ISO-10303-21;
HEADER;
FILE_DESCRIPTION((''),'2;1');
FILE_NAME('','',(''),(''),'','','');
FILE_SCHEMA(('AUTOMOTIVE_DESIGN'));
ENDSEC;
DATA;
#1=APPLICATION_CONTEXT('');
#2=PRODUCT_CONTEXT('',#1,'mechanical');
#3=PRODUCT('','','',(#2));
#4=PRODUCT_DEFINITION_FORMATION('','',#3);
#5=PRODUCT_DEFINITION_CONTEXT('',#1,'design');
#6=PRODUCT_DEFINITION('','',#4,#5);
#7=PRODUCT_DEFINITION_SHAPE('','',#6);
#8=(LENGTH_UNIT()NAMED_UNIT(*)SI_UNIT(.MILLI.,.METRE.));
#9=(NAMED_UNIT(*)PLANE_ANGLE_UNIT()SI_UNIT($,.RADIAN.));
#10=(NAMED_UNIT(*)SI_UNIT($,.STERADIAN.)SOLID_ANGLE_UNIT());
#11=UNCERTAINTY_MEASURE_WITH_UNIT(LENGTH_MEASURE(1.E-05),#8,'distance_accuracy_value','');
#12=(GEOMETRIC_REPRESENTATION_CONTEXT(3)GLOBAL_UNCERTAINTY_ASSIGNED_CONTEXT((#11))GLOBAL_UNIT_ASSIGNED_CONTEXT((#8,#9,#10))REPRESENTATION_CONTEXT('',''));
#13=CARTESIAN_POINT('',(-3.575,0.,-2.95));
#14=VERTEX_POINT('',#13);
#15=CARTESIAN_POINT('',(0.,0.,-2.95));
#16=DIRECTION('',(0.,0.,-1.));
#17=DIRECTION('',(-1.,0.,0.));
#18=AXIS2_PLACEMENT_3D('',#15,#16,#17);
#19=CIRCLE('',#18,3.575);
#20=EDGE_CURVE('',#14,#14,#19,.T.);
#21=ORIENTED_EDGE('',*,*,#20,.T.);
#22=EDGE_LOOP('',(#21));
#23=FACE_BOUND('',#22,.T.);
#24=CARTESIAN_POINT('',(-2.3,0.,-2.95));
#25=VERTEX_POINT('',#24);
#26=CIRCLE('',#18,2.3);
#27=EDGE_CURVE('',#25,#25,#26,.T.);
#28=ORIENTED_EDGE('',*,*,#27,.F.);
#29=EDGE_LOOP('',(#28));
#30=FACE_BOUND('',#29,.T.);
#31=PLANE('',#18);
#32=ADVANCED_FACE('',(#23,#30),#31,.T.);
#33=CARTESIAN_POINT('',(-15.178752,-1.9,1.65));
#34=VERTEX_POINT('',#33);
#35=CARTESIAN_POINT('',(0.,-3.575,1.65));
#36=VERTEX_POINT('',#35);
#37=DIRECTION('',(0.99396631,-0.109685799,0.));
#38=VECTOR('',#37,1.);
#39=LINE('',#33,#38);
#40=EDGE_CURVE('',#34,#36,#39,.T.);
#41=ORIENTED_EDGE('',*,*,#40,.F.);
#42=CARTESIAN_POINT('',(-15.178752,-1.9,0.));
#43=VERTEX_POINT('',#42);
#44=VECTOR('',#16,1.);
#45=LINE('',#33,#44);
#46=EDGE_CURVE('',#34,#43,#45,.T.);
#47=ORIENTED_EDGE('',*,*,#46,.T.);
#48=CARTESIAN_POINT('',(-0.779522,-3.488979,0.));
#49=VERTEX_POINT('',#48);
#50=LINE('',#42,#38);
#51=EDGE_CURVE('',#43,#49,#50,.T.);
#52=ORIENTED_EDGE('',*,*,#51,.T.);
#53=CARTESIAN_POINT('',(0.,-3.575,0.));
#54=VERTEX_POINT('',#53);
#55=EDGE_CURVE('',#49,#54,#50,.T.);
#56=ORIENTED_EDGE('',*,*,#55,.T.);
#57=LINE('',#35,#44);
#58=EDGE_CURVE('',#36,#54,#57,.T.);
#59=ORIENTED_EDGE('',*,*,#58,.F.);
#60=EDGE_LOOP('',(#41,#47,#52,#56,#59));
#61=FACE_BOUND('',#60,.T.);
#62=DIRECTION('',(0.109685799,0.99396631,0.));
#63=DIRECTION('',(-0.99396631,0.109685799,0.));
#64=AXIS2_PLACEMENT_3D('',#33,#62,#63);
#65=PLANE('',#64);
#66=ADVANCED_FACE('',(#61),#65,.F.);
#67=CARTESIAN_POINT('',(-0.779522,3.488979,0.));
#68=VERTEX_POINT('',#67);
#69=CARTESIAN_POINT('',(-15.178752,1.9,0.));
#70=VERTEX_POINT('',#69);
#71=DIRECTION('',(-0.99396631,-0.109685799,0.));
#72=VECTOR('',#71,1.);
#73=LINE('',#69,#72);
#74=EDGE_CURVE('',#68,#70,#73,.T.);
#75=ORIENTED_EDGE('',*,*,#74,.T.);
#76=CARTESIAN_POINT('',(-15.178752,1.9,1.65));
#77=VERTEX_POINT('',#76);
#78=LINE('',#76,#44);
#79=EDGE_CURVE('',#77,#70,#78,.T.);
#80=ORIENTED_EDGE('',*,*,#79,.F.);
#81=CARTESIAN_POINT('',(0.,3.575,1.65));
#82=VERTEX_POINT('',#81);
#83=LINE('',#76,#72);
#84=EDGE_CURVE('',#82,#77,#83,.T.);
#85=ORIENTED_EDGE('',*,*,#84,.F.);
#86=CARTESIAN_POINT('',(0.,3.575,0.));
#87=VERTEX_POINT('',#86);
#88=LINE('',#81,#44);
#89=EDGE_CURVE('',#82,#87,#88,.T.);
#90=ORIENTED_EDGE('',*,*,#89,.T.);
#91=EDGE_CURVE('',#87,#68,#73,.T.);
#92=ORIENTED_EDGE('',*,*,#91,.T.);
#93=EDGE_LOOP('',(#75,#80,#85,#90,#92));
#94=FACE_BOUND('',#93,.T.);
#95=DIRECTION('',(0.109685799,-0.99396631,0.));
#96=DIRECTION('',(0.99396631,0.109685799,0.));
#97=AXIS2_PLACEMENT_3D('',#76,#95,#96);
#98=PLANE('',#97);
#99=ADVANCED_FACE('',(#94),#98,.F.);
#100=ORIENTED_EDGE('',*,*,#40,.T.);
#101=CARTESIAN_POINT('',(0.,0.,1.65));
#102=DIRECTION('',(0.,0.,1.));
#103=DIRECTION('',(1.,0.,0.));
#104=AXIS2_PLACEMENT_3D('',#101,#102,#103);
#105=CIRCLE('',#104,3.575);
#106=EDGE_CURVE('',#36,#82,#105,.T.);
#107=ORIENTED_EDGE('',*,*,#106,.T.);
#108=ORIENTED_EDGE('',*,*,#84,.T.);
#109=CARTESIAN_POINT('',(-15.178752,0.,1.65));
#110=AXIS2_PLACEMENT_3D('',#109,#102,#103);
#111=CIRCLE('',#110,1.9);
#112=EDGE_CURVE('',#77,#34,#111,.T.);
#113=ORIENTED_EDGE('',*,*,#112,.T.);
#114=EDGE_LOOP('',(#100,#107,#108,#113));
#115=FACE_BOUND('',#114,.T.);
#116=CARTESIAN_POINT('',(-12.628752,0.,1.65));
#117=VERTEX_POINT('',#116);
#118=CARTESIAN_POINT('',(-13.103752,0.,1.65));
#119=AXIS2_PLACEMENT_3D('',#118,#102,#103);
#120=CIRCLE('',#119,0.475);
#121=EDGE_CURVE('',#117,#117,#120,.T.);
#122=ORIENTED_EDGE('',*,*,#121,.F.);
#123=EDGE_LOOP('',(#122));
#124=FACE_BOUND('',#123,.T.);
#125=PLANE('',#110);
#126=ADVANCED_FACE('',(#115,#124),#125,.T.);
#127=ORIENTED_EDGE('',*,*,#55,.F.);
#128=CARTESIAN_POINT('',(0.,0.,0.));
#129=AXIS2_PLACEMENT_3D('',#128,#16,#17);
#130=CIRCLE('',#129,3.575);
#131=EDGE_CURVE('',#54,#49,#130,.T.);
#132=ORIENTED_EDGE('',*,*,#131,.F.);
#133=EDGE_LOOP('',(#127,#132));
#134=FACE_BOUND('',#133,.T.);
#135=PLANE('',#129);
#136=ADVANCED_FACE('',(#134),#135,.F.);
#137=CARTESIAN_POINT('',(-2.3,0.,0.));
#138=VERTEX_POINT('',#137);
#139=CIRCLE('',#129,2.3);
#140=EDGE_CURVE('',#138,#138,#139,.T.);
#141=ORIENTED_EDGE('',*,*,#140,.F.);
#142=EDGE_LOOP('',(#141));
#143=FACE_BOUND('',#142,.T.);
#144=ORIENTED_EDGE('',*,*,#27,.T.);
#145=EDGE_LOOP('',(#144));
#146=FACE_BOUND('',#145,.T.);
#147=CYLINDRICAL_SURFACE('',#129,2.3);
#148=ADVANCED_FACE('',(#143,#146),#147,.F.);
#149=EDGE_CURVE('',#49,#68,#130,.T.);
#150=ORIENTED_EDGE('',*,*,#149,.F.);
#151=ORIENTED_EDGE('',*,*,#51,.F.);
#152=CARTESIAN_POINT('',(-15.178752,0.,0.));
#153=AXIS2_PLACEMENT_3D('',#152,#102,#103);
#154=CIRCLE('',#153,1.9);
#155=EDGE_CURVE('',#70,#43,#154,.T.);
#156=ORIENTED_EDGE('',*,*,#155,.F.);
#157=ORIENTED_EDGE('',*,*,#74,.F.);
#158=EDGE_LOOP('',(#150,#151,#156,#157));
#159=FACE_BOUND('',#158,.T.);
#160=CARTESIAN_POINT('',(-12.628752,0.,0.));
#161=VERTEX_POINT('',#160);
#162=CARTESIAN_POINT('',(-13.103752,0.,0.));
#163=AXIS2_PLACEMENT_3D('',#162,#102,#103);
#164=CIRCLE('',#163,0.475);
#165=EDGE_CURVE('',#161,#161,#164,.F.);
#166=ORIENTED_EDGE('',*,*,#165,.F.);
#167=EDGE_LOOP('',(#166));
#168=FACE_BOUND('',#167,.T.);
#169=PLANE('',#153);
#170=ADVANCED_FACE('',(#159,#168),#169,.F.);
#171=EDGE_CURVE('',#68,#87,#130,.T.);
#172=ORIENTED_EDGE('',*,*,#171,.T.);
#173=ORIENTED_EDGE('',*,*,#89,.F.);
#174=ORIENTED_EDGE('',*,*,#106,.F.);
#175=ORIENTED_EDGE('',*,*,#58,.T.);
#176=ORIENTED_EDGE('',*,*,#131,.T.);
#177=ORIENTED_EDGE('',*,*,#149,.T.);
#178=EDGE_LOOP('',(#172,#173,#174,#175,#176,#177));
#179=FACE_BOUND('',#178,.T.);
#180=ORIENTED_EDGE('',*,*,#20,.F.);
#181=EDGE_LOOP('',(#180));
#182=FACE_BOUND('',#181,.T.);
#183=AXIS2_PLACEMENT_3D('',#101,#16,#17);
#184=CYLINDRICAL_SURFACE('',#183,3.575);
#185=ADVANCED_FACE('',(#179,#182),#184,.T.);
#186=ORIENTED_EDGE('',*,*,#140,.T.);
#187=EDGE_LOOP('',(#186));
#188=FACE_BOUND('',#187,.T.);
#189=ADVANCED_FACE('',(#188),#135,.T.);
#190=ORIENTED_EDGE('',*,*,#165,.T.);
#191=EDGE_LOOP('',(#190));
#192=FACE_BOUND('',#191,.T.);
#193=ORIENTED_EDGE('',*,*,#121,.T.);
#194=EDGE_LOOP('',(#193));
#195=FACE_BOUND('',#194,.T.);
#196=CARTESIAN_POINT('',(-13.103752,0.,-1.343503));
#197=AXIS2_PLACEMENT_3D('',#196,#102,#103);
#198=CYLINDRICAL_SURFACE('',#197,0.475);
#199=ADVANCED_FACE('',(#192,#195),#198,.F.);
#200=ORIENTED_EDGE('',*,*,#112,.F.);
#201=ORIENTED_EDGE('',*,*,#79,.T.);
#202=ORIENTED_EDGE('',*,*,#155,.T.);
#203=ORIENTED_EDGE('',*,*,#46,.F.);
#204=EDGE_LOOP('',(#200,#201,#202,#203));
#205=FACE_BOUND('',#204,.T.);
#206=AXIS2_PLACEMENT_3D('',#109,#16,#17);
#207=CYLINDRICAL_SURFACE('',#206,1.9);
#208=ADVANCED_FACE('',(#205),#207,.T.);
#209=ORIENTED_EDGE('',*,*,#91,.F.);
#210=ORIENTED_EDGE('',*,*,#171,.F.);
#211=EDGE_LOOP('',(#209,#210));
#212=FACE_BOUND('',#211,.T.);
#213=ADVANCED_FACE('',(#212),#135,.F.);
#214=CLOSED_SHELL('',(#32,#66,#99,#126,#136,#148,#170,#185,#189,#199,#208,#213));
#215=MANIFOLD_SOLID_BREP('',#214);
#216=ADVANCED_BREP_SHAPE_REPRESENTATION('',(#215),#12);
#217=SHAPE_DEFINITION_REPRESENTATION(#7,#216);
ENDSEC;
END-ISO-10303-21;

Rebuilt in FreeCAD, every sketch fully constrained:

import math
import FreeCAD as App
import Part
import Sketcher
Q = App.Units.Quantity

doc = App.newDocument("Part")
body = doc.addObject("PartDesign::Body", "Body")

sketch1 = doc.addObject("Sketcher::SketchObject", "Sketch")
body.addObject(sketch1)
sketch1.AttachmentSupport = (doc.XY_Plane, [""])
sketch1.MapMode = "FlatFace"
sketch1.addGeometry([
    Part.LineSegment(App.Vector(0, 3.575, 0), App.Vector(-15.178752, 1.9, 0)),
    Part.ArcOfCircle(Part.Circle(App.Vector(-15.178752, 0, 0), App.Vector(0, 0, 1), 1.9), math.radians(90), math.radians(270)),
    Part.LineSegment(App.Vector(-15.178752, -1.9, 0), App.Vector(0, -3.575, 0)),
    Part.ArcOfCircle(Part.Circle(App.Vector(0, 0, 0), App.Vector(0, 0, 1), 3.575), math.radians(-90), math.radians(90)),
], False)
sketch1.addConstraint([
    Sketcher.Constraint("Coincident", 0, 2, 1, 1),
    Sketcher.Constraint("Coincident", 1, 2, 2, 1),
    Sketcher.Constraint("Coincident", 2, 2, 3, 1),
    Sketcher.Constraint("Coincident", 3, 2, 0, 1),
    Sketcher.Constraint("Coincident", 3, 3, -1, 1),
    Sketcher.Constraint("Symmetric", 0, 2, 1, 2, -1),
    Sketcher.Constraint("PointOnObject", 2, 2, -2),
    Sketcher.Constraint("PointOnObject", 3, 2, -2),
    Sketcher.Constraint("Vertical", 1, 3, 0, 2),
    Sketcher.Constraint("Radius", 1, Q("1.9 mm")),
    Sketcher.Constraint("Radius", 3, Q("3.575 mm")),
    Sketcher.Constraint("Distance", 0, Q("15.270892 mm")),
])
pad1 = doc.addObject("PartDesign::Pad", "Pad")
body.addObject(pad1)
pad1.Profile = sketch1
pad1.Length = 1.65

sketch2 = doc.addObject("Sketcher::SketchObject", "Sketch001")
body.addObject(sketch2)
sketch2.AttachmentSupport = (doc.XY_Plane, [""])
sketch2.MapMode = "FlatFace"
sketch2.AttachmentOffset = App.Placement(App.Vector(0, 0, -2.95), App.Rotation())
sketch2.addGeometry(Part.Circle(App.Vector(0, 0, 0), App.Vector(0, 0, 1), 3.575), False)
sketch2.addConstraint([
    Sketcher.Constraint("Coincident", 0, 3, -1, 1),
    Sketcher.Constraint("Diameter", 0, Q("7.15 mm")),
])
pad2 = doc.addObject("PartDesign::Pad", "Pad001")
body.addObject(pad2)
pad2.Profile = sketch2
pad2.Length = 2.95

sketch3 = doc.addObject("Sketcher::SketchObject", "Sketch002")
body.addObject(sketch3)
sketch3.AttachmentSupport = (doc.XY_Plane, [""])
sketch3.MapMode = "FlatFace"
sketch3.AttachmentOffset = App.Placement(App.Vector(0, 0, -2.95), App.Rotation())
sketch3.addGeometry(Part.Circle(App.Vector(0, 0, 0), App.Vector(0, 0, 1), 2.3), False)
sketch3.addConstraint([
    Sketcher.Constraint("Coincident", 0, 3, -1, 1),
    Sketcher.Constraint("Diameter", 0, Q("4.6 mm")),
])
pocket1 = doc.addObject("PartDesign::Pocket", "Pocket")
body.addObject(pocket1)
pocket1.Profile = sketch3
pocket1.Length = 2.95
pocket1.Reversed = True

sketch4 = doc.addObject("Sketcher::SketchObject", "Sketch003")
body.addObject(sketch4)
sketch4.AttachmentSupport = (doc.XY_Plane, [""])
sketch4.MapMode = "FlatFace"
sketch4.AttachmentOffset = App.Placement(App.Vector(0, 0, 1.65), App.Rotation())
sketch4.addGeometry(Part.Circle(App.Vector(-13.103752, 0, 0), App.Vector(0, 0, 1), 0.475), False)
sketch4.addConstraint([
    Sketcher.Constraint("PointOnObject", 0, 3, -1),
    Sketcher.Constraint("Diameter", 0, Q("0.95 mm")),
    Sketcher.Constraint("DistanceX", 0, 3, -1, 1, Q("13.103752 mm")),
])
pocket2 = doc.addObject("PartDesign::Pocket", "Pocket001")
body.addObject(pocket2)
pocket2.Profile = sketch4
pocket2.Length = 1.65

doc.recompute()
